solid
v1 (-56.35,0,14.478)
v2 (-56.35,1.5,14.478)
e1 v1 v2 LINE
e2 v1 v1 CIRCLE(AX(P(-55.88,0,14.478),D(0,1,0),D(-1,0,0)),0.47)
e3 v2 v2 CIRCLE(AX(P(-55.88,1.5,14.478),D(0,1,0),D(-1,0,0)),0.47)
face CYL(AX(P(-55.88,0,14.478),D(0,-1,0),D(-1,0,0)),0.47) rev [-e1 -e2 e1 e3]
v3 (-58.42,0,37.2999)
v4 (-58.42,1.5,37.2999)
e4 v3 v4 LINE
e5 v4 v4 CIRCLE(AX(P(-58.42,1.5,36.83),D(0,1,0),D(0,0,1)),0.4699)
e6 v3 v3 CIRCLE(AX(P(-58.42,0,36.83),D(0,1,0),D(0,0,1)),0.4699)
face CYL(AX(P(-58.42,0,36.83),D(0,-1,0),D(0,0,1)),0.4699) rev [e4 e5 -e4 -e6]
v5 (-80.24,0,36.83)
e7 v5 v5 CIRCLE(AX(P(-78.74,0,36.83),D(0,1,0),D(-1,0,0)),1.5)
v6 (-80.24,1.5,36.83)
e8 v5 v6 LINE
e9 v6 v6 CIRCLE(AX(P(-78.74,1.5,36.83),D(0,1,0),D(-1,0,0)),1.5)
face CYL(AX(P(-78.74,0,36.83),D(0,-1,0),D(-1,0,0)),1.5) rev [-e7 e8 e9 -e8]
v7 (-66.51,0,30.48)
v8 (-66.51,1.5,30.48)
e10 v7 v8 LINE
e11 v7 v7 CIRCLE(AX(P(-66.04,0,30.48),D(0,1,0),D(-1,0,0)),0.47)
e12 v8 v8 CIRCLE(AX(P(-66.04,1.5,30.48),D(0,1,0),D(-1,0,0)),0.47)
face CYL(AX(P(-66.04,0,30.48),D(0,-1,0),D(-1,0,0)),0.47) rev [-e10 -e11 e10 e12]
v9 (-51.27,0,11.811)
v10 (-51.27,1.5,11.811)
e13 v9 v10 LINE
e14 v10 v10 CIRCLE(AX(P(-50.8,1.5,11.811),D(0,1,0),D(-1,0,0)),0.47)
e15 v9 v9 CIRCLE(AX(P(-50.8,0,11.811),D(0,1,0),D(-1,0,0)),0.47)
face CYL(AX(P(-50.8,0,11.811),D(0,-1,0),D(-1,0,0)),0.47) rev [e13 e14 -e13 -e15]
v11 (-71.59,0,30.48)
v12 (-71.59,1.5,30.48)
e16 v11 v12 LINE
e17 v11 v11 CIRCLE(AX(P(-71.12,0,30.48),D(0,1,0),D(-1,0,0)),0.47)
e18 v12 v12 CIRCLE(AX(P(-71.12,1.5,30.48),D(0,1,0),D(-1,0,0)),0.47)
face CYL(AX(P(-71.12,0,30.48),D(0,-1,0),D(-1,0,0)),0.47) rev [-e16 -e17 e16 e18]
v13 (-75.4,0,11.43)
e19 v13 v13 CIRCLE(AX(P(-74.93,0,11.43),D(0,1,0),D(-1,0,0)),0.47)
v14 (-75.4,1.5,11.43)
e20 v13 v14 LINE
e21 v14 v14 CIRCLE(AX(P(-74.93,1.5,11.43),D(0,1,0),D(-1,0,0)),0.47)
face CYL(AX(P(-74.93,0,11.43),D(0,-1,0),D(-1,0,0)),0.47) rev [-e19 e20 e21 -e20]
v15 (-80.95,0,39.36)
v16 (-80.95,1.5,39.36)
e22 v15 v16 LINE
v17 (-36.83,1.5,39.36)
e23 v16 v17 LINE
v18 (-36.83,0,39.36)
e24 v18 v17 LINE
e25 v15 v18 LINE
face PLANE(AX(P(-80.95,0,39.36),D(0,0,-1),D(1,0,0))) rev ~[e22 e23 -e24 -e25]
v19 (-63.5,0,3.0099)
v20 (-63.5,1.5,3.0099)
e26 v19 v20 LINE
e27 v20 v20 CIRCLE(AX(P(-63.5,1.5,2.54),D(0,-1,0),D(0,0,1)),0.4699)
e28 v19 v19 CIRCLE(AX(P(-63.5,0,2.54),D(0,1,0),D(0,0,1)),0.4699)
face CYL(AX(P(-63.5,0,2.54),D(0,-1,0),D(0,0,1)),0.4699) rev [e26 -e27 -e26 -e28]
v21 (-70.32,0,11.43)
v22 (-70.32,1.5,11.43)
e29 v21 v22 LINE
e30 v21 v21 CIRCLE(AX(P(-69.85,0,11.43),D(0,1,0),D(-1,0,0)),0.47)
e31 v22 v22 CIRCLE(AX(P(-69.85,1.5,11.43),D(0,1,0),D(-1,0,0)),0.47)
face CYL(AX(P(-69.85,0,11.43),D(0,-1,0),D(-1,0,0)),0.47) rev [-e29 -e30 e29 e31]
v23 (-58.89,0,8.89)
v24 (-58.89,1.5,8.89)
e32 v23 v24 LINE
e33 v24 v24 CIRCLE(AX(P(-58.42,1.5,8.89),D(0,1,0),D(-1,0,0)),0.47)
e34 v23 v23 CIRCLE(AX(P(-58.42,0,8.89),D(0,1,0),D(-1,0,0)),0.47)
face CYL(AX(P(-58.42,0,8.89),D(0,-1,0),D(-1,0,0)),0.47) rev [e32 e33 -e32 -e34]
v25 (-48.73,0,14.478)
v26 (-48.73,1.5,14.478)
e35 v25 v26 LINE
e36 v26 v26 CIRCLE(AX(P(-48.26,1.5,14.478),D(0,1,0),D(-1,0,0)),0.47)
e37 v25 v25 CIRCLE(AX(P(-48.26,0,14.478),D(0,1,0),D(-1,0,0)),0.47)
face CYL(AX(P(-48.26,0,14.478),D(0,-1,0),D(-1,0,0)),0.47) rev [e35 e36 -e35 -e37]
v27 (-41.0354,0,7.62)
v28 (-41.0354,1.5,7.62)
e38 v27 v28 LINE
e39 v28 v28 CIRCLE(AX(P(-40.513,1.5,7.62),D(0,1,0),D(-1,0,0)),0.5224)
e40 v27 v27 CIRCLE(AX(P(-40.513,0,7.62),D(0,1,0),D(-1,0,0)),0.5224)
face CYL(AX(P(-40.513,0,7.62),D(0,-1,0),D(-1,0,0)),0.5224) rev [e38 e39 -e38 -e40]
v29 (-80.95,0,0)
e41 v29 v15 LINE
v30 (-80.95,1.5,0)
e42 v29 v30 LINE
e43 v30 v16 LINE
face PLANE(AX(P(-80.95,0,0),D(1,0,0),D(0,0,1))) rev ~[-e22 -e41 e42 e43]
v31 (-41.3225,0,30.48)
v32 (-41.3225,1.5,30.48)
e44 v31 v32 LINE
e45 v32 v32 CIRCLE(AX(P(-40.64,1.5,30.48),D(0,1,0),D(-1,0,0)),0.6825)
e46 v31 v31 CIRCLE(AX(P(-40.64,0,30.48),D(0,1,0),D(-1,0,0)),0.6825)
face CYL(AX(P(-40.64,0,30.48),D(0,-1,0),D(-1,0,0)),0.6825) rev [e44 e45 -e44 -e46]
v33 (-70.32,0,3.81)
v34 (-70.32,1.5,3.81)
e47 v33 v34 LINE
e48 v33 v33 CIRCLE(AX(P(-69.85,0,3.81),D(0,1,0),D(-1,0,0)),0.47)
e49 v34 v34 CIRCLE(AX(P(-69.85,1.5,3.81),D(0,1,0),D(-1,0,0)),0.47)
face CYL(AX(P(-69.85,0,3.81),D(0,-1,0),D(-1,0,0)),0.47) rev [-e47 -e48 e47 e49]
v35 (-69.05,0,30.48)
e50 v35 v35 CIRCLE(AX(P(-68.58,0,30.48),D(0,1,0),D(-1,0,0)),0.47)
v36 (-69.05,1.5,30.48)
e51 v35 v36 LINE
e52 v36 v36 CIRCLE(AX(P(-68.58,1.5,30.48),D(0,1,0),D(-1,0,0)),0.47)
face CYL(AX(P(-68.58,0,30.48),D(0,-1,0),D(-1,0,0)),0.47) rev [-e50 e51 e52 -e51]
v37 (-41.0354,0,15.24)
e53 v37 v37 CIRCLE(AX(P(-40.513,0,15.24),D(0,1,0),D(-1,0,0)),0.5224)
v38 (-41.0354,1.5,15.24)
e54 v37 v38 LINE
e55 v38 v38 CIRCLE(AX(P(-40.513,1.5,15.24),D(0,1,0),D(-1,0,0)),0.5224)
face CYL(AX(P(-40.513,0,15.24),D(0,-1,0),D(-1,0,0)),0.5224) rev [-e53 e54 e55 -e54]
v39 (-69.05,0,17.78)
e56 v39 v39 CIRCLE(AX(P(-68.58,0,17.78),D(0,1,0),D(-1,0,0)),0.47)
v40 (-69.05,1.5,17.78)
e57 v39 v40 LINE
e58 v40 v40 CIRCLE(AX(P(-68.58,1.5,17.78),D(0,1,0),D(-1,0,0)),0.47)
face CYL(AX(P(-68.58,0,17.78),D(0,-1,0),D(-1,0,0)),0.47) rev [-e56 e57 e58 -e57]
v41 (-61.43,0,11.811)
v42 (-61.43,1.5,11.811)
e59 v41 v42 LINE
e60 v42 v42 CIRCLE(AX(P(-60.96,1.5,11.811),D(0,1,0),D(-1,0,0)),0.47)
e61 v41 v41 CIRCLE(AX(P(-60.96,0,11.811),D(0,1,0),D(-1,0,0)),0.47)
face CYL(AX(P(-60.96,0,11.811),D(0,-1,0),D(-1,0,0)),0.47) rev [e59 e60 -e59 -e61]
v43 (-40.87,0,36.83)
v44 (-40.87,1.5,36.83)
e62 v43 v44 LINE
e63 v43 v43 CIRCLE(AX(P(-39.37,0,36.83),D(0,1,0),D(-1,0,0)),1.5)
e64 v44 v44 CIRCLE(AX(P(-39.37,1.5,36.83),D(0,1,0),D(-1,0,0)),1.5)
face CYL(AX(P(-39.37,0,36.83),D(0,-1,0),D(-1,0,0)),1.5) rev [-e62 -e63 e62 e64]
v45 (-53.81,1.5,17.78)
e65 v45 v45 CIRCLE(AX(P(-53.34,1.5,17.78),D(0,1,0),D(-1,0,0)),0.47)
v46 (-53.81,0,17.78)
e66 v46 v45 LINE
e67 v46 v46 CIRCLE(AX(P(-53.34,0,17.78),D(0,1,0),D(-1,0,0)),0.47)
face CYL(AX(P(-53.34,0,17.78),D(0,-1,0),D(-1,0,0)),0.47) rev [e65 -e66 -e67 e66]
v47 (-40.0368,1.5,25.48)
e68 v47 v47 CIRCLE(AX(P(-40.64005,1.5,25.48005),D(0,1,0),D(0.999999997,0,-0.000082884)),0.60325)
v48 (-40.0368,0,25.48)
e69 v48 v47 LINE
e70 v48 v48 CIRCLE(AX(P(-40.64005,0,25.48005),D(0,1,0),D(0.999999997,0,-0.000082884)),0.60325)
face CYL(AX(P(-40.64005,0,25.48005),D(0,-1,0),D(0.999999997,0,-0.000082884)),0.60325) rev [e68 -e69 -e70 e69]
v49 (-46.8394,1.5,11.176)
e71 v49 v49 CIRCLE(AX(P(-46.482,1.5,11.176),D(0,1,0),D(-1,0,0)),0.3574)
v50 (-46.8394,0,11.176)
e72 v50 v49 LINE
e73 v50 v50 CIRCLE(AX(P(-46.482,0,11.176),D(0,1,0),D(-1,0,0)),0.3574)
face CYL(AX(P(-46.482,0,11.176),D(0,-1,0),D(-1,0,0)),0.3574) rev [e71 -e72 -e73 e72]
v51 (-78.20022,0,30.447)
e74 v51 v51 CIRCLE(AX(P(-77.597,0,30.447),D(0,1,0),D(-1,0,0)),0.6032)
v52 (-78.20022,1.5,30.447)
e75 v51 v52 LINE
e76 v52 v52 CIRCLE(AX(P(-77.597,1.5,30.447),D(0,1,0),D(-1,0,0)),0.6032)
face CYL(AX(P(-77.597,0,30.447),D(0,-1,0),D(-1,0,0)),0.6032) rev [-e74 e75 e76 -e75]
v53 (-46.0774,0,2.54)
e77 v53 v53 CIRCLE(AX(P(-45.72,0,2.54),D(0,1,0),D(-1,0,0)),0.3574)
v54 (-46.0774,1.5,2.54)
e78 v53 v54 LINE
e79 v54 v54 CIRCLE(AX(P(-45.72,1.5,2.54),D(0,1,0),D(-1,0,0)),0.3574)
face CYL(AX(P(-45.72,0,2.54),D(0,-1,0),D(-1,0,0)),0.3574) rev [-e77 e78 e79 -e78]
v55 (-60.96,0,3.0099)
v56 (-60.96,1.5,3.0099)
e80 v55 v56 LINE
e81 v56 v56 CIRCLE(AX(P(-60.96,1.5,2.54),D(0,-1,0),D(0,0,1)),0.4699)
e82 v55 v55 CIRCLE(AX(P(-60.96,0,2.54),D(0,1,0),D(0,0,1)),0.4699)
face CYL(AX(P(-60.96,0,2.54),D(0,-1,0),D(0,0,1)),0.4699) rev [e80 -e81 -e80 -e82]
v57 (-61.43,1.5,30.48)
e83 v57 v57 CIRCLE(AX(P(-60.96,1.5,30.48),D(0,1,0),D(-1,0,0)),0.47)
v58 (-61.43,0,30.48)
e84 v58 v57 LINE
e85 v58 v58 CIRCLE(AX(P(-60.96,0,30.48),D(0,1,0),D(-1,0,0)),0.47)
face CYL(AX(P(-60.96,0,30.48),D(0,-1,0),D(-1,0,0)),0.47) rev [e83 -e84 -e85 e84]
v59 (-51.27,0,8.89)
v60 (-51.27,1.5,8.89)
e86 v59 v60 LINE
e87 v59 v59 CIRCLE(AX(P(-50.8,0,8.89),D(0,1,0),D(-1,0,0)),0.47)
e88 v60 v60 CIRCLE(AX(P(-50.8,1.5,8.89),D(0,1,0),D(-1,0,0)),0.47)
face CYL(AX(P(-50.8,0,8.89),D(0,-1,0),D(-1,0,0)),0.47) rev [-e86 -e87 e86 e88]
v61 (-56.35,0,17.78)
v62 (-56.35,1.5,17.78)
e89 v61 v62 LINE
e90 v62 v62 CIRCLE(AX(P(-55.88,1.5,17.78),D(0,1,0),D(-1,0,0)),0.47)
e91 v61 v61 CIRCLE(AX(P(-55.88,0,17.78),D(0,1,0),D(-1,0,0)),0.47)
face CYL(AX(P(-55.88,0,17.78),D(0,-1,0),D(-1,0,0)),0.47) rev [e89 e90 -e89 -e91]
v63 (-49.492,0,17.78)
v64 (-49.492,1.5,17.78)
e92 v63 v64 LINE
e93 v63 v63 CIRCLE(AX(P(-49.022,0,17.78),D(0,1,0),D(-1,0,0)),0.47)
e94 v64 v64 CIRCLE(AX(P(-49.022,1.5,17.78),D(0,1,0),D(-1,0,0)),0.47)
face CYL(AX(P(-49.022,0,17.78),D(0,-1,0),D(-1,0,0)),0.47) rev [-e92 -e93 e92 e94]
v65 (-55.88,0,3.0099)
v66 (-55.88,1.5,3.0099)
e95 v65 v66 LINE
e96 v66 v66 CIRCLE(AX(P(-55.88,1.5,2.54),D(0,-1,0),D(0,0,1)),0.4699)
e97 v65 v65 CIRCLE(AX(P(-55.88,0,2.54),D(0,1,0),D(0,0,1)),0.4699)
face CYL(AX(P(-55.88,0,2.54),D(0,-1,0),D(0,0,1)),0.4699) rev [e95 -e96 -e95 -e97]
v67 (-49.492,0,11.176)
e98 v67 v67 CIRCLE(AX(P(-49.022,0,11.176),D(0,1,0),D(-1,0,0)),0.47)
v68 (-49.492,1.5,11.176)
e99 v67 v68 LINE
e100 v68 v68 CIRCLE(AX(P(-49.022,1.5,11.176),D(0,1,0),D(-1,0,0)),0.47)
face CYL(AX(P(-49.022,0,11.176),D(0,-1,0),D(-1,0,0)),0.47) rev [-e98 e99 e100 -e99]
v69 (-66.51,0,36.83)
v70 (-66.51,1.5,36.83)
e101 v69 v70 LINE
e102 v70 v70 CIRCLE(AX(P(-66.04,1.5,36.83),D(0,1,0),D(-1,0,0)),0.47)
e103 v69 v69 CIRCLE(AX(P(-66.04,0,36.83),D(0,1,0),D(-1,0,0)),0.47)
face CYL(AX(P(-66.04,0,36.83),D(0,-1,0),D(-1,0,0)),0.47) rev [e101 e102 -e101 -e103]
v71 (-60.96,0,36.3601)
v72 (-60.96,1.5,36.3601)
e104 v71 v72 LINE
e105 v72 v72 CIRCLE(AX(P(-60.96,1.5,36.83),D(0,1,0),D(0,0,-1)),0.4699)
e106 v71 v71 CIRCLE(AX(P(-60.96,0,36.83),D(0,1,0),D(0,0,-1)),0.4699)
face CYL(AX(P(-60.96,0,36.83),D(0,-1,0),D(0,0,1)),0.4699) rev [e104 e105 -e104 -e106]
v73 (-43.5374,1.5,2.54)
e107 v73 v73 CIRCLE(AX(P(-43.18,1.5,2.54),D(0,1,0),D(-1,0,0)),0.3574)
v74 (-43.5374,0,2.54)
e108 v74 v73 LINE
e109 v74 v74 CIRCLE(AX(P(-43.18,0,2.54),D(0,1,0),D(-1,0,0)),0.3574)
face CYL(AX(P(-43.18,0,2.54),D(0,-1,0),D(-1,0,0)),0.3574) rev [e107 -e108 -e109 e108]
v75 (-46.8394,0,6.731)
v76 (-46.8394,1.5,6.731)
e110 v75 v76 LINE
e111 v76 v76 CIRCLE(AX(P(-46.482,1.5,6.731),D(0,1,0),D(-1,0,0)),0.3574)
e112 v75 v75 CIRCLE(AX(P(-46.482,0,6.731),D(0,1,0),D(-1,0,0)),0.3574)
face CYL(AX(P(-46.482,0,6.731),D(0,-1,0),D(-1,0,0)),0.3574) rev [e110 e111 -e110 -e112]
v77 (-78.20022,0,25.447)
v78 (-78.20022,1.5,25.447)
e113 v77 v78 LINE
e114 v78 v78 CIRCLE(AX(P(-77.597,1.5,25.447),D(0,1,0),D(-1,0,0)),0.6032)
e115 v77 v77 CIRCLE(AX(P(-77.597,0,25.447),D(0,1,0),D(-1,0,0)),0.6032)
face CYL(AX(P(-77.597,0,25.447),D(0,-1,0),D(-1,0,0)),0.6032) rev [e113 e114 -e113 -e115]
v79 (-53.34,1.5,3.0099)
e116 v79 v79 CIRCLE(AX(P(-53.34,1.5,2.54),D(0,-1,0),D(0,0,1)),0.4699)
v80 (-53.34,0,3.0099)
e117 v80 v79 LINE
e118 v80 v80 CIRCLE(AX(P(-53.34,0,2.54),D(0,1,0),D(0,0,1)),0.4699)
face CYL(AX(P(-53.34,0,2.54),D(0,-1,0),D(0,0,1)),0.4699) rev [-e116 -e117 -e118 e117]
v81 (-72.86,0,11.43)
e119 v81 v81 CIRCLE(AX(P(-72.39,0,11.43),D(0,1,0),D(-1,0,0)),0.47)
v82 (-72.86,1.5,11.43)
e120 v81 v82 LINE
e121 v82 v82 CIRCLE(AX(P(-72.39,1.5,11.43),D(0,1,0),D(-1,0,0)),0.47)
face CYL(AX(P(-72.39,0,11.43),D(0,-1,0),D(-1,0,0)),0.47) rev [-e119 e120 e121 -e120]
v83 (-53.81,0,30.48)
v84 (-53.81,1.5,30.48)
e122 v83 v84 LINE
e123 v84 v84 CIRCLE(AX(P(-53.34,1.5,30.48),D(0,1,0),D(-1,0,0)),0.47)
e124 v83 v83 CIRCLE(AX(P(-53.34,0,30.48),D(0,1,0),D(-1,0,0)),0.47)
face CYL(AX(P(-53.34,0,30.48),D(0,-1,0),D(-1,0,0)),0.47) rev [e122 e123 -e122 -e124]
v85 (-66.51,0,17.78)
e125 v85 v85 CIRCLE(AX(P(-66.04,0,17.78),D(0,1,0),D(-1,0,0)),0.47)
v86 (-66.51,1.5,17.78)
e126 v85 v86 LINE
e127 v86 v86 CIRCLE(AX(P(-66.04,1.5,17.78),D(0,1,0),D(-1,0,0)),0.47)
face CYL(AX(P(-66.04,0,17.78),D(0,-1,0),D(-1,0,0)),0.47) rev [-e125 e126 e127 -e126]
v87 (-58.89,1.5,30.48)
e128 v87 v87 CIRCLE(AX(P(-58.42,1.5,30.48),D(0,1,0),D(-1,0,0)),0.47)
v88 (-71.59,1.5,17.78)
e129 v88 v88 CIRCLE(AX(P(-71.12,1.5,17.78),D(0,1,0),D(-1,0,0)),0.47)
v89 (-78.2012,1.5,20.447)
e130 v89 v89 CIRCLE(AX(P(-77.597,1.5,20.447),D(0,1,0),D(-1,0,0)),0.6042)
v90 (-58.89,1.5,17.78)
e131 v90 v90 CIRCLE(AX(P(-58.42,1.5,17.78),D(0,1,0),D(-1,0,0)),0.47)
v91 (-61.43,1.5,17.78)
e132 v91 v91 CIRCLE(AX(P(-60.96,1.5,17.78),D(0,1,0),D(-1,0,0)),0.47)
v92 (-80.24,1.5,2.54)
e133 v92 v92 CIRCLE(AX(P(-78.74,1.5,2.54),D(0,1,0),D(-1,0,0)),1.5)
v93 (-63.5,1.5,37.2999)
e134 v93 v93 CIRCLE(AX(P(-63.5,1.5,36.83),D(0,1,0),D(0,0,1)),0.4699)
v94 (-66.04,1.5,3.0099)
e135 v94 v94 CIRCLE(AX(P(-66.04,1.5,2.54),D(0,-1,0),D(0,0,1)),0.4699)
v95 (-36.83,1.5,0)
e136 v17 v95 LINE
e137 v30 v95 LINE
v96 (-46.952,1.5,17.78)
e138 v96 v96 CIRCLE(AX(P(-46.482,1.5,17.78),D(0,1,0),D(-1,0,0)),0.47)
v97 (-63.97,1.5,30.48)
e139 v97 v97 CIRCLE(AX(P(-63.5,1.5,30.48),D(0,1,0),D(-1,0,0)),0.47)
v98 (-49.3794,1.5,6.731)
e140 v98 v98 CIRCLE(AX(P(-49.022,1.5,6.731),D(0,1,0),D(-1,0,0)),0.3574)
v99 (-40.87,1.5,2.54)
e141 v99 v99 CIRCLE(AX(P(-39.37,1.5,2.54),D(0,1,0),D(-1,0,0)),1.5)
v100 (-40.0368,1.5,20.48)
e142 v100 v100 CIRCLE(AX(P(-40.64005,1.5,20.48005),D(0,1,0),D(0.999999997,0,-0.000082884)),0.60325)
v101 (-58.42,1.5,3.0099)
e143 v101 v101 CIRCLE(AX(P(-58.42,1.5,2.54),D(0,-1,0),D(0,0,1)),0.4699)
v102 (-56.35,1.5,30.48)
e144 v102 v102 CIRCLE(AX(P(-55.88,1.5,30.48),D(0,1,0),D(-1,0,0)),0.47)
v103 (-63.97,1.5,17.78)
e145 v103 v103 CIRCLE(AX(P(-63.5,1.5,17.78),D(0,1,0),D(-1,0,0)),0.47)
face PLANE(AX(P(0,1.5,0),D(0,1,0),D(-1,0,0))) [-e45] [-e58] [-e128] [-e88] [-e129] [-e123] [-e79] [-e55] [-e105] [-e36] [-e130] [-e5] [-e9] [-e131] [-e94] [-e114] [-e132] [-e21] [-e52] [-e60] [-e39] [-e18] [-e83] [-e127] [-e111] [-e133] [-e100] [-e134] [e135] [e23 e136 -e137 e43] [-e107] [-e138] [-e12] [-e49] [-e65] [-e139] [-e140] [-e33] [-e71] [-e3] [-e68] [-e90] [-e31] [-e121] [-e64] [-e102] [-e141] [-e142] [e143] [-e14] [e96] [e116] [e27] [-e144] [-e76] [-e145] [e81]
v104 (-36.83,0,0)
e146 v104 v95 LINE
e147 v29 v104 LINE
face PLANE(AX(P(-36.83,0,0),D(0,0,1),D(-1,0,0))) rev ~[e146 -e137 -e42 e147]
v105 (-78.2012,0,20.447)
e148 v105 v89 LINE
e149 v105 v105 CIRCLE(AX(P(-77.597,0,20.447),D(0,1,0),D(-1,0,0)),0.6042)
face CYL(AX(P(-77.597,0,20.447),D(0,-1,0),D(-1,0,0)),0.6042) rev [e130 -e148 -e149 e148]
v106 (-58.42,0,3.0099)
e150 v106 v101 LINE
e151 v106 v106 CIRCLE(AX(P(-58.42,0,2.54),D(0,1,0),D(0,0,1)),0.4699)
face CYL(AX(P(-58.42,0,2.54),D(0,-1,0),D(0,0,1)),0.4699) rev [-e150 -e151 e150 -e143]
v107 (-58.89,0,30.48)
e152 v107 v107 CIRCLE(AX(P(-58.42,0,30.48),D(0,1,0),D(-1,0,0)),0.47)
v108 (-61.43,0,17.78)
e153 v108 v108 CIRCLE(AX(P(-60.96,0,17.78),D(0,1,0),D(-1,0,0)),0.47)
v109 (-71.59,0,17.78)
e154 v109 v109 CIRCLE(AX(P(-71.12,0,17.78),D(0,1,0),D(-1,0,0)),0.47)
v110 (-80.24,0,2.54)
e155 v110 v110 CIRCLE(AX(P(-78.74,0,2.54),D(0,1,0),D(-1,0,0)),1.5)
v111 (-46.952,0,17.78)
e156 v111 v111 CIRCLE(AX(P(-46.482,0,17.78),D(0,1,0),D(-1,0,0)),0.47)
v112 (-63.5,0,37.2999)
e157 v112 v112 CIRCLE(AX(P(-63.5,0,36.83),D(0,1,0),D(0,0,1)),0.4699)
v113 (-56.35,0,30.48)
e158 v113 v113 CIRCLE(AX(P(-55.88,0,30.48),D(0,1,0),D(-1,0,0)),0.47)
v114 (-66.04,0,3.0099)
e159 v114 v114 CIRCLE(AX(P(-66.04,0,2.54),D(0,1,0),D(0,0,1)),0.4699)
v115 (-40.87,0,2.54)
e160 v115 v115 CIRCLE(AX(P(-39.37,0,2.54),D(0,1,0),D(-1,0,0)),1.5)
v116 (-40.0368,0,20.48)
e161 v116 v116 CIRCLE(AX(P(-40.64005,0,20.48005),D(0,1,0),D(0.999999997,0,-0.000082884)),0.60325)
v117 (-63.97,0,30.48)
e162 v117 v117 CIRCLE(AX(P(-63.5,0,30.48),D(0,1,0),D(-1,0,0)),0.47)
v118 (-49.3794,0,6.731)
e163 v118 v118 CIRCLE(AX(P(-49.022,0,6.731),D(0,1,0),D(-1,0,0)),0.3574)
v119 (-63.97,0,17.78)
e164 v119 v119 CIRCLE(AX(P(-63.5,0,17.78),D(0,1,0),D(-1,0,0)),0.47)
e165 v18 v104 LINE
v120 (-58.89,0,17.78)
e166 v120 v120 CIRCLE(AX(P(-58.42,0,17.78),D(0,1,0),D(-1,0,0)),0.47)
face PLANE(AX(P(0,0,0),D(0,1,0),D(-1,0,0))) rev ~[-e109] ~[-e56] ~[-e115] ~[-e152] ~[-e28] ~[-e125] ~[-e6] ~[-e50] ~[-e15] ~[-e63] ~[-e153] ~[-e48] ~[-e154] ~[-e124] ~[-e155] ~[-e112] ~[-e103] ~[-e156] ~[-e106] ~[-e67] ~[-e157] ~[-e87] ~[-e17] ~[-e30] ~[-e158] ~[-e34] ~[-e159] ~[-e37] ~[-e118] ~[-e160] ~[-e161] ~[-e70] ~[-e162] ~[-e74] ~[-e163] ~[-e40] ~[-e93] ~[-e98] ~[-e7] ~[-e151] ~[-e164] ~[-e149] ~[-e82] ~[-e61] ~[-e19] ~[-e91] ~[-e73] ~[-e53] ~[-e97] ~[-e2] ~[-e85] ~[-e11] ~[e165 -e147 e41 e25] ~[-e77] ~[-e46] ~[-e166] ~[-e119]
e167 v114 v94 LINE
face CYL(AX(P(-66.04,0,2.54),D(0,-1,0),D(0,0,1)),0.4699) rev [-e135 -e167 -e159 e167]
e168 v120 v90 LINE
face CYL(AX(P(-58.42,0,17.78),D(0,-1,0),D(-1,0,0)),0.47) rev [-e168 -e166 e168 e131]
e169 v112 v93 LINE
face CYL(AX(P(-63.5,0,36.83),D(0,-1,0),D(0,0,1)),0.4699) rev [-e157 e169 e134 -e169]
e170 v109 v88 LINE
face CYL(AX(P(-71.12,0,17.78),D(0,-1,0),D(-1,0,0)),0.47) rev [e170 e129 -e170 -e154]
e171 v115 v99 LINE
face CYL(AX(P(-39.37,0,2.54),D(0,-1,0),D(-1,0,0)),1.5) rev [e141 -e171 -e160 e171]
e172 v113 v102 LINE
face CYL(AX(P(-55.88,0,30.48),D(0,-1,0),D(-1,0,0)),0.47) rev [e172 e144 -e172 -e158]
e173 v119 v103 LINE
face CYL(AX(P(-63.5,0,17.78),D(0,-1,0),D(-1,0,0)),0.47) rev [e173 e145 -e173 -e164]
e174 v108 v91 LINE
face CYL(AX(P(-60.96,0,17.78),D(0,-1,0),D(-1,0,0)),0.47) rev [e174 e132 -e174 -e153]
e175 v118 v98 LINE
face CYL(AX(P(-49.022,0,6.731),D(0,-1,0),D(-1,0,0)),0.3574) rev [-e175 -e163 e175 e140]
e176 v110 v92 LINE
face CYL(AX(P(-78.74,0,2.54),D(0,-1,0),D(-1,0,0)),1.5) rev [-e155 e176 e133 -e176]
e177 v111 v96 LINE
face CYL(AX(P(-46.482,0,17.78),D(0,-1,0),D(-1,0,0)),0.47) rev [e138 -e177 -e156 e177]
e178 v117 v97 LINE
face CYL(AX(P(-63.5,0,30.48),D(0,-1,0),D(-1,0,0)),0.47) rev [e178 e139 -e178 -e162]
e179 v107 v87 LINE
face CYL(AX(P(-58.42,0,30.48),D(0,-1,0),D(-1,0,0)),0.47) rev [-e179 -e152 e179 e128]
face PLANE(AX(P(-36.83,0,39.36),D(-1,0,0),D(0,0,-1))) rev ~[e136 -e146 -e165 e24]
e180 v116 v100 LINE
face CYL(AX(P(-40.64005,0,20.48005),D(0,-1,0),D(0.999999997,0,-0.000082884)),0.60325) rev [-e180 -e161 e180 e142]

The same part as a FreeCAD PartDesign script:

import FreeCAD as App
import Part
import Sketcher

V = App.Vector
Q = App.Units.Quantity

doc = App.newDocument("Part")
params = doc.addObject("Spreadsheet::Sheet", "Params")
for row, (alias, value) in enumerate([
    ("sketch1_diameter", "0.037 in"),
    ("sketch1_width", "1.737 in"),
    ("pad1_length", "1.5 mm"),
], start=1):
    params.set(f"A{row}", alias)
    params.set(f"B{row}", "=" + value)
    params.setAlias(f"B{row}", alias)

body = doc.addObject("PartDesign::Body", "Body")

# Sketch on XZ plane
sketch1 = body.newObject("Sketcher::SketchObject", "Sketch")
sketch1.AttachmentSupport = (doc.getObject("XZ_Plane"), [""])
sketch1.MapMode = "FlatFace"
sketch1.addGeometry([
    Part.LineSegment(V(-36.83, 39.36, 0), V(-36.83, 0, 0)),  # 0
    Part.LineSegment(V(-36.83, 0, 0), V(-80.95, 0, 0)),  # 1
    Part.LineSegment(V(-80.95, 0, 0), V(-80.95, 39.36, 0)),  # 2
    Part.LineSegment(V(-80.95, 39.36, 0), V(-36.83, 39.36, 0)),  # 3
    Part.Circle(V(-39.37, 2.54, 0), V(0, 0, 1), 1.5),  # 4
    Part.Circle(V(-43.18, 2.54, 0), V(0, 0, 1), 0.36),  # 5
    Part.Circle(V(-45.72, 2.54, 0), V(0, 0, 1), 0.36),  # 6
    Part.Circle(V(-40.51, 7.62, 0), V(0, 0, 1), 0.52),  # 7
    Part.Circle(V(-46.48, 6.73, 0), V(0, 0, 1), 0.36),  # 8
    Part.Circle(V(-49.02, 6.73, 0), V(0, 0, 1), 0.36),  # 9
    Part.Circle(V(-46.48, 11.18, 0), V(0, 0, 1), 0.36),  # 10
    Part.Circle(V(-40.51, 15.24, 0), V(0, 0, 1), 0.52),  # 11
    Part.Circle(V(-46.48, 17.78, 0), V(0, 0, 1), 0.47),  # 12
    Part.Circle(V(-49.02, 11.18, 0), V(0, 0, 1), 0.47),  # 13
    Part.Circle(V(-50.8, 11.81, 0), V(0, 0, 1), 0.47),  # 14
    Part.Circle(V(-49.02, 17.78, 0), V(0, 0, 1), 0.47),  # 15
    Part.Circle(V(-53.34, 17.78, 0), V(0, 0, 1), 0.47),  # 16
    Part.Circle(V(-55.88, 17.78, 0), V(0, 0, 1), 0.47),  # 17
    Part.Circle(V(-58.42, 17.78, 0), V(0, 0, 1), 0.47),  # 18
    Part.Circle(V(-78.74, 2.54, 0), V(0, 0, 1), 1.5),  # 19
    Part.Circle(V(-60.96, 11.81, 0), V(0, 0, 1), 0.47),  # 20
    Part.Circle(V(-60.96, 17.78, 0), V(0, 0, 1), 0.47),  # 21
    Part.Circle(V(-63.5, 17.78, 0), V(0, 0, 1), 0.47),  # 22
    Part.Circle(V(-66.04, 17.78, 0), V(0, 0, 1), 0.47),  # 23
    Part.Circle(V(-68.58, 17.78, 0), V(0, 0, 1), 0.47),  # 24
    Part.Circle(V(-72.39, 11.43, 0), V(0, 0, 1), 0.47),  # 25
    Part.Circle(V(-74.93, 11.43, 0), V(0, 0, 1), 0.47),  # 26
    Part.Circle(V(-71.12, 17.78, 0), V(0, 0, 1), 0.47),  # 27
    Part.Circle(V(-40.64, 20.48, 0), V(0, 0, 1), 0.6),  # 28
    Part.Circle(V(-40.64, 25.48, 0), V(0, 0, 1), 0.6),  # 29
    Part.Circle(V(-39.37, 36.83, 0), V(0, 0, 1), 1.5),  # 30
    Part.Circle(V(-53.34, 30.48, 0), V(0, 0, 1), 0.47),  # 31
    Part.Circle(V(-55.88, 30.48, 0), V(0, 0, 1), 0.47),  # 32
    Part.Circle(V(-58.42, 30.48, 0), V(0, 0, 1), 0.47),  # 33
    Part.Circle(V(-58.42, 36.83, 0), V(0, 0, 1), 0.47),  # 34
    Part.Circle(V(-77.6, 25.45, 0), V(0, 0, 1), 0.6),  # 35
    Part.Circle(V(-60.96, 30.48, 0), V(0, 0, 1), 0.47),  # 36
    Part.Circle(V(-63.5, 30.48, 0), V(0, 0, 1), 0.47),  # 37
    Part.Circle(V(-66.04, 30.48, 0), V(0, 0, 1), 0.47),  # 38
    Part.Circle(V(-68.58, 30.48, 0), V(0, 0, 1), 0.47),  # 39
    Part.Circle(V(-60.96, 36.83, 0), V(0, 0, 1), 0.47),  # 40
    Part.Circle(V(-63.5, 36.83, 0), V(0, 0, 1), 0.47),  # 41
    Part.Circle(V(-71.12, 30.48, 0), V(0, 0, 1), 0.47),  # 42
    Part.Circle(V(-77.6, 30.45, 0), V(0, 0, 1), 0.6),  # 43
    Part.Circle(V(-78.74, 36.83, 0), V(0, 0, 1), 1.5),  # 44
    Part.Circle(V(-66.04, 2.54, 0), V(0, 0, 1), 0.47),  # 45
    Part.Circle(V(-63.5, 2.54, 0), V(0, 0, 1), 0.47),  # 46
    Part.Circle(V(-53.34, 2.54, 0), V(0, 0, 1), 0.47),  # 47
    Part.Circle(V(-55.88, 2.54, 0), V(0, 0, 1), 0.47),  # 48
    Part.Circle(V(-58.42, 2.54, 0), V(0, 0, 1), 0.47),  # 49
    Part.Circle(V(-60.96, 2.54, 0), V(0, 0, 1), 0.47),  # 50
    Part.Circle(V(-50.8, 8.89, 0), V(0, 0, 1), 0.47),  # 51
    Part.Circle(V(-58.42, 8.89, 0), V(0, 0, 1), 0.47),  # 52
    Part.Circle(V(-48.26, 14.48, 0), V(0, 0, 1), 0.47),  # 53
    Part.Circle(V(-55.88, 14.48, 0), V(0, 0, 1), 0.47),  # 54
    Part.Circle(V(-69.85, 3.81, 0), V(0, 0, 1), 0.47),  # 55
    Part.Circle(V(-69.85, 11.43, 0), V(0, 0, 1), 0.47),  # 56
    Part.Circle(V(-40.64, 30.48, 0), V(0, 0, 1), 0.68),  # 57
    Part.Circle(V(-77.6, 20.45, 0), V(0, 0, 1), 0.6),  # 58
    Part.Circle(V(-66.04, 36.83, 0), V(0, 0, 1), 0.47),  # 59
], False)
sketch1.addConstraint([
    Sketcher.Constraint("Coincident", 0, 2, 1, 1),
    Sketcher.Constraint("Coincident", 1, 2, 2, 1),
    Sketcher.Constraint("Coincident", 2, 2, 3, 1),
    Sketcher.Constraint("Coincident", 3, 2, 0, 1),
    Sketcher.Constraint("Vertical", 0),
    Sketcher.Constraint("Horizontal", 1),
    Sketcher.Constraint("Vertical", 2),
    Sketcher.Constraint("Horizontal", 3),
    Sketcher.Constraint("Equal", 5, 6),
    Sketcher.Constraint("Equal", 6, 8),
    Sketcher.Constraint("Equal", 8, 9),
    Sketcher.Constraint("Equal", 9, 10),
    Sketcher.Constraint("Equal", 7, 11),
    Sketcher.Constraint("Equal", 12, 13),
    Sketcher.Constraint("Equal", 13, 14),
    Sketcher.Constraint("Equal", 14, 15),
    Sketcher.Constraint("Equal", 15, 16),
    Sketcher.Constraint("Equal", 16, 17),
    Sketcher.Constraint("Equal", 17, 18),
    Sketcher.Constraint("Equal", 4, 19),
    Sketcher.Constraint("Equal", 18, 20),
    Sketcher.Constraint("Equal", 20, 21),
    Sketcher.Constraint("Equal", 21, 22),
    Sketcher.Constraint("Equal", 22, 23),
    Sketcher.Constraint("Equal", 23, 24),
    Sketcher.Constraint("Equal", 24, 25),
    Sketcher.Constraint("Equal", 25, 26),
    Sketcher.Constraint("Equal", 26, 27),
    Sketcher.Constraint("Equal", 28, 29),
    Sketcher.Constraint("Equal", 19, 30),
    Sketcher.Constraint("Equal", 27, 31),
    Sketcher.Constraint("Equal", 31, 32),
    Sketcher.Constraint("Equal", 32, 33),
    Sketcher.Constraint("Equal", 33, 34),
    Sketcher.Constraint("Equal", 29, 35),
    Sketcher.Constraint("Equal", 34, 36),
    Sketcher.Constraint("Equal", 36, 37),
    Sketcher.Constraint("Equal", 37, 38),
    Sketcher.Constraint("Equal", 38, 39),
    Sketcher.Constraint("Equal", 39, 40),
    Sketcher.Constraint("Equal", 40, 41),
    Sketcher.Constraint("Equal", 41, 42),
    Sketcher.Constraint("Equal", 35, 43),
    Sketcher.Constraint("Equal", 30, 44),
    Sketcher.Constraint("Equal", 42, 45),
    Sketcher.Constraint("Equal", 45, 46),
    Sketcher.Constraint("Equal", 46, 47),
    Sketcher.Constraint("Equal", 47, 48),
    Sketcher.Constraint("Equal", 48, 49),
    Sketcher.Constraint("Equal", 49, 50),
    Sketcher.Constraint("Equal", 50, 51),
    Sketcher.Constraint("Equal", 51, 52),
    Sketcher.Constraint("Equal", 52, 53),
    Sketcher.Constraint("Equal", 53, 54),
    Sketcher.Constraint("Equal", 54, 55),
    Sketcher.Constraint("Equal", 55, 56),
    Sketcher.Constraint("Equal", 56, 59),
    Sketcher.Constraint("PointOnObject", 0, 2, -1),
    Sketcher.Constraint("Horizontal", 4, 3, 5, 3),
    Sketcher.Constraint("Horizontal", 5, 3, 6, 3),
    Sketcher.Constraint("Horizontal", 8, 3, 9, 3),
    Sketcher.Constraint("Horizontal", 10, 3, 13, 3),
    Sketcher.Constraint("Horizontal", 12, 3, 15, 3),
    Sketcher.Constraint("Horizontal", 15, 3, 16, 3),
    Sketcher.Constraint("Horizontal", 16, 3, 17, 3),
    Sketcher.Constraint("Horizontal", 17, 3, 18, 3),
    Sketcher.Constraint("Horizontal", 6, 3, 19, 3),
    Sketcher.Constraint("Horizontal", 14, 3, 20, 3),
    Sketcher.Constraint("Horizontal", 18, 3, 21, 3),
    Sketcher.Constraint("Horizontal", 21, 3, 22, 3),
    Sketcher.Constraint("Horizontal", 22, 3, 23, 3),
    Sketcher.Constraint("Horizontal", 23, 3, 24, 3),
    Sketcher.Constraint("Horizontal", 25, 3, 26, 3),
    Sketcher.Constraint("Horizontal", 24, 3, 27, 3),
    Sketcher.Constraint("Horizontal", 31, 3, 32, 3),
    Sketcher.Constraint("Horizontal", 32, 3, 33, 3),
    Sketcher.Constraint("Horizontal", 30, 3, 34, 3),
    Sketcher.Constraint("Horizontal", 33, 3, 36, 3),
    Sketcher.Constraint("Horizontal", 36, 3, 37, 3),
    Sketcher.Constraint("Horizontal", 37, 3, 38, 3),
    Sketcher.Constraint("Horizontal", 38, 3, 39, 3),
    Sketcher.Constraint("Horizontal", 34, 3, 40, 3),
    Sketcher.Constraint("Horizontal", 40, 3, 41, 3),
    Sketcher.Constraint("Horizontal", 39, 3, 42, 3),
    Sketcher.Constraint("Horizontal", 41, 3, 44, 3),
    Sketcher.Constraint("Horizontal", 19, 3, 45, 3),
    Sketcher.Constraint("Horizontal", 45, 3, 46, 3),
    Sketcher.Constraint("Horizontal", 46, 3, 47, 3),
    Sketcher.Constraint("Horizontal", 47, 3, 48, 3),
    Sketcher.Constraint("Horizontal", 48, 3, 49, 3),
    Sketcher.Constraint("Horizontal", 49, 3, 50, 3),
    Sketcher.Constraint("Horizontal", 51, 3, 52, 3),
    Sketcher.Constraint("Horizontal", 53, 3, 54, 3),
    Sketcher.Constraint("Horizontal", 26, 3, 56, 3),
    Sketcher.Constraint("Horizontal", 42, 3, 57, 3),
    Sketcher.Constraint("Horizontal", 44, 3, 59, 3),
    Sketcher.Constraint("Vertical", 8, 3, 10, 3),
    Sketcher.Constraint("Vertical", 7, 3, 11, 3),
    Sketcher.Constraint("Vertical", 10, 3, 12, 3),
    Sketcher.Constraint("Vertical", 9, 3, 13, 3),
    Sketcher.Constraint("Vertical", 13, 3, 15, 3),
    Sketcher.Constraint("Vertical", 20, 3, 21, 3),
    Sketcher.Constraint("Vertical", 28, 3, 29, 3),
    Sketcher.Constraint("Vertical", 4, 3, 30, 3),
    Sketcher.Constraint("Vertical", 16, 3, 31, 3),
    Sketcher.Constraint("Vertical", 17, 3, 32, 3),
    Sketcher.Constraint("Vertical", 18, 3, 33, 3),
    Sketcher.Constraint("Vertical", 33, 3, 34, 3),
    Sketcher.Constraint("Vertical", 21, 3, 36, 3),
    Sketcher.Constraint("Vertical", 22, 3, 37, 3),
    Sketcher.Constraint("Vertical", 23, 3, 38, 3),
    Sketcher.Constraint("Vertical", 24, 3, 39, 3),
    Sketcher.Constraint("Vertical", 36, 3, 40, 3),
    Sketcher.Constraint("Vertical", 37, 3, 41, 3),
    Sketcher.Constraint("Vertical", 27, 3, 42, 3),
    Sketcher.Constraint("Vertical", 35, 3, 43, 3),
    Sketcher.Constraint("Vertical", 19, 3, 44, 3),
    Sketcher.Constraint("Vertical", 38, 3, 45, 3),
    Sketcher.Constraint("Vertical", 41, 3, 46, 3),
    Sketcher.Constraint("Vertical", 31, 3, 47, 3),
    Sketcher.Constraint("Vertical", 32, 3, 48, 3),
    Sketcher.Constraint("Vertical", 34, 3, 49, 3),
    Sketcher.Constraint("Vertical", 40, 3, 50, 3),
    Sketcher.Constraint("Vertical", 14, 3, 51, 3),
    Sketcher.Constraint("Vertical", 49, 3, 52, 3),
    Sketcher.Constraint("Vertical", 48, 3, 54, 3),
    Sketcher.Constraint("Vertical", 55, 3, 56, 3),
    Sketcher.Constraint("Vertical", 29, 3, 57, 3),
    Sketcher.Constraint("Vertical", 43, 3, 58, 3),
    Sketcher.Constraint("Vertical", 45, 3, 59, 3),
    Sketcher.Constraint("Diameter", 12, Q("0.037 in")),
    Sketcher.Constraint("DistanceY", -1, 1, 4, 3, Q("0.1 in")),
    Sketcher.Constraint("DistanceX", 6, 3, 5, 3, Q("0.1 in")),
    Sketcher.Constraint("DistanceX", 9, 3, 8, 3, Q("0.1 in")),
    Sketcher.Constraint("DistanceY", 11, 3, 12, 3, Q("0.1 in")),
    Sketcher.Constraint("DistanceX", 16, 3, 14, 3, Q("0.1 in")),
    Sketcher.Constraint("DistanceX", 17, 3, 16, 3, Q("0.1 in")),
    Sketcher.Constraint("DistanceX", 18, 3, 17, 3, Q("0.1 in")),
    Sketcher.Constraint("DistanceX", 20, 3, 18, 3, Q("0.1 in")),
    Sketcher.Constraint("DistanceX", 22, 3, 21, 3, Q("0.1 in")),
    Sketcher.Constraint("DistanceX", 23, 3, 22, 3, Q("0.1 in")),
    Sketcher.Constraint("DistanceX", 24, 3, 23, 3, Q("0.1 in")),
    Sketcher.Constraint("DistanceX", 26, 3, 25, 3, Q("0.1 in")),
    Sketcher.Constraint("DistanceX", 27, 3, 24, 3, Q("0.1 in")),
    Sketcher.Constraint("DistanceX", 14, 3, 53, 3, Q("0.1 in")),
    Sketcher.Constraint("DistanceX", 25, 3, 55, 3, Q("0.1 in")),
    Sketcher.Constraint("DistanceX", 4, 3, 0, 2, Q("0.1 in")),
    Sketcher.Constraint("DistanceX", 14, 3, -1, 1, Q("2 in")),
    Sketcher.Constraint("DistanceX", 19, 3, 16, 3, Q("1 in")),
    Sketcher.Constraint("Diameter", 4, Q("0.1181 in")),
    Sketcher.Constraint("Diameter", 28, Q("0.0475 in")),
    Sketcher.Constraint("DistanceX", 5, 3, -1, 1, Q("1.7 in")),
    Sketcher.Constraint("DistanceY", -1, 1, 7, 3, Q("0.3 in")),
    Sketcher.Constraint("DistanceY", -1, 1, 11, 3, Q("0.6 in")),
    Sketcher.Constraint("DistanceX", 28, 3, -1, 1, Q("1.6 in")),
    Sketcher.Constraint("DistanceY", -1, 1, 31, 3, Q("1.2 in")),
    Sketcher.Constraint("DistanceY", 9, 3, 14, 3, Q("0.2 in")),
    Sketcher.Constraint("DistanceY", 55, 3, 25, 3, Q("0.3 in")),
    Sketcher.Constraint("Diameter", 5, Q("0.7148 mm")),
    Sketcher.Constraint("Diameter", 7, Q("1.0448 mm")),
    Sketcher.Constraint("Diameter", 57, Q("1.365 mm")),
    Sketcher.Constraint("Diameter", 58, Q("1.2084 mm")),
    Sketcher.Constraint("DistanceX", 1, 2, 1, 1, Q("1.737 in")),
    Sketcher.Constraint("DistanceX", 4, 3, -1, 1, Q("1.55 in")),
    Sketcher.Constraint("DistanceX", 8, 3, -1, 1, Q("1.83 in")),
    Sketcher.Constraint("DistanceY", -1, 1, 10, 3, Q("0.44 in")),
    Sketcher.Constraint("DistanceX", 25, 3, -1, 1, Q("2.85 in")),
    Sketcher.Constraint("DistanceY", -1, 1, 25, 3, Q("0.45 in")),
    Sketcher.Constraint("DistanceY", -1, 1, 30, 3, Q("1.45 in")),
    Sketcher.Constraint("DistanceY", -1, 1, 51, 3, Q("0.35 in")),
    Sketcher.Constraint("DistanceY", -1, 1, 53, 3, Q("0.57 in")),
    Sketcher.Constraint("DistanceY", 0, 2, 0, 1, Q("1.5496 in")),
    Sketcher.Constraint("DistanceX", 7, 3, -1, 1, Q("1.595 in")),
    Sketcher.Constraint("DistanceY", -1, 1, 8, 3, Q("0.265 in")),
    Sketcher.Constraint("DistanceX", 35, 3, -1, 1, Q("3.055 in")),
    Sketcher.Constraint("DistanceY", -1, 1, 58, 3, Q("0.805 in")),
    Sketcher.Constraint("DistanceY", -1, 1, 28, 3, Q("0.8063 in")),
    Sketcher.Constraint("DistanceY", -1, 1, 43, 3, Q("1.1987 in")),
    Sketcher.Constraint("DistanceY", -1, 1, 29, 3, Q("25.48 mm")),
    Sketcher.Constraint("DistanceY", -1, 1, 35, 3, Q("25.447 mm")),
])
sketch1.setExpression("Constraints[130]", "Params.sketch1_diameter")
sketch1.setExpression("Constraints[162]", "Params.sketch1_width")
pad1 = body.newObject("PartDesign::Pad", "Pad")
pad1.Profile = sketch1
pad1.setExpression("Length", "Params.pad1_length")
pad1.Reversed = True

doc.recompute()
